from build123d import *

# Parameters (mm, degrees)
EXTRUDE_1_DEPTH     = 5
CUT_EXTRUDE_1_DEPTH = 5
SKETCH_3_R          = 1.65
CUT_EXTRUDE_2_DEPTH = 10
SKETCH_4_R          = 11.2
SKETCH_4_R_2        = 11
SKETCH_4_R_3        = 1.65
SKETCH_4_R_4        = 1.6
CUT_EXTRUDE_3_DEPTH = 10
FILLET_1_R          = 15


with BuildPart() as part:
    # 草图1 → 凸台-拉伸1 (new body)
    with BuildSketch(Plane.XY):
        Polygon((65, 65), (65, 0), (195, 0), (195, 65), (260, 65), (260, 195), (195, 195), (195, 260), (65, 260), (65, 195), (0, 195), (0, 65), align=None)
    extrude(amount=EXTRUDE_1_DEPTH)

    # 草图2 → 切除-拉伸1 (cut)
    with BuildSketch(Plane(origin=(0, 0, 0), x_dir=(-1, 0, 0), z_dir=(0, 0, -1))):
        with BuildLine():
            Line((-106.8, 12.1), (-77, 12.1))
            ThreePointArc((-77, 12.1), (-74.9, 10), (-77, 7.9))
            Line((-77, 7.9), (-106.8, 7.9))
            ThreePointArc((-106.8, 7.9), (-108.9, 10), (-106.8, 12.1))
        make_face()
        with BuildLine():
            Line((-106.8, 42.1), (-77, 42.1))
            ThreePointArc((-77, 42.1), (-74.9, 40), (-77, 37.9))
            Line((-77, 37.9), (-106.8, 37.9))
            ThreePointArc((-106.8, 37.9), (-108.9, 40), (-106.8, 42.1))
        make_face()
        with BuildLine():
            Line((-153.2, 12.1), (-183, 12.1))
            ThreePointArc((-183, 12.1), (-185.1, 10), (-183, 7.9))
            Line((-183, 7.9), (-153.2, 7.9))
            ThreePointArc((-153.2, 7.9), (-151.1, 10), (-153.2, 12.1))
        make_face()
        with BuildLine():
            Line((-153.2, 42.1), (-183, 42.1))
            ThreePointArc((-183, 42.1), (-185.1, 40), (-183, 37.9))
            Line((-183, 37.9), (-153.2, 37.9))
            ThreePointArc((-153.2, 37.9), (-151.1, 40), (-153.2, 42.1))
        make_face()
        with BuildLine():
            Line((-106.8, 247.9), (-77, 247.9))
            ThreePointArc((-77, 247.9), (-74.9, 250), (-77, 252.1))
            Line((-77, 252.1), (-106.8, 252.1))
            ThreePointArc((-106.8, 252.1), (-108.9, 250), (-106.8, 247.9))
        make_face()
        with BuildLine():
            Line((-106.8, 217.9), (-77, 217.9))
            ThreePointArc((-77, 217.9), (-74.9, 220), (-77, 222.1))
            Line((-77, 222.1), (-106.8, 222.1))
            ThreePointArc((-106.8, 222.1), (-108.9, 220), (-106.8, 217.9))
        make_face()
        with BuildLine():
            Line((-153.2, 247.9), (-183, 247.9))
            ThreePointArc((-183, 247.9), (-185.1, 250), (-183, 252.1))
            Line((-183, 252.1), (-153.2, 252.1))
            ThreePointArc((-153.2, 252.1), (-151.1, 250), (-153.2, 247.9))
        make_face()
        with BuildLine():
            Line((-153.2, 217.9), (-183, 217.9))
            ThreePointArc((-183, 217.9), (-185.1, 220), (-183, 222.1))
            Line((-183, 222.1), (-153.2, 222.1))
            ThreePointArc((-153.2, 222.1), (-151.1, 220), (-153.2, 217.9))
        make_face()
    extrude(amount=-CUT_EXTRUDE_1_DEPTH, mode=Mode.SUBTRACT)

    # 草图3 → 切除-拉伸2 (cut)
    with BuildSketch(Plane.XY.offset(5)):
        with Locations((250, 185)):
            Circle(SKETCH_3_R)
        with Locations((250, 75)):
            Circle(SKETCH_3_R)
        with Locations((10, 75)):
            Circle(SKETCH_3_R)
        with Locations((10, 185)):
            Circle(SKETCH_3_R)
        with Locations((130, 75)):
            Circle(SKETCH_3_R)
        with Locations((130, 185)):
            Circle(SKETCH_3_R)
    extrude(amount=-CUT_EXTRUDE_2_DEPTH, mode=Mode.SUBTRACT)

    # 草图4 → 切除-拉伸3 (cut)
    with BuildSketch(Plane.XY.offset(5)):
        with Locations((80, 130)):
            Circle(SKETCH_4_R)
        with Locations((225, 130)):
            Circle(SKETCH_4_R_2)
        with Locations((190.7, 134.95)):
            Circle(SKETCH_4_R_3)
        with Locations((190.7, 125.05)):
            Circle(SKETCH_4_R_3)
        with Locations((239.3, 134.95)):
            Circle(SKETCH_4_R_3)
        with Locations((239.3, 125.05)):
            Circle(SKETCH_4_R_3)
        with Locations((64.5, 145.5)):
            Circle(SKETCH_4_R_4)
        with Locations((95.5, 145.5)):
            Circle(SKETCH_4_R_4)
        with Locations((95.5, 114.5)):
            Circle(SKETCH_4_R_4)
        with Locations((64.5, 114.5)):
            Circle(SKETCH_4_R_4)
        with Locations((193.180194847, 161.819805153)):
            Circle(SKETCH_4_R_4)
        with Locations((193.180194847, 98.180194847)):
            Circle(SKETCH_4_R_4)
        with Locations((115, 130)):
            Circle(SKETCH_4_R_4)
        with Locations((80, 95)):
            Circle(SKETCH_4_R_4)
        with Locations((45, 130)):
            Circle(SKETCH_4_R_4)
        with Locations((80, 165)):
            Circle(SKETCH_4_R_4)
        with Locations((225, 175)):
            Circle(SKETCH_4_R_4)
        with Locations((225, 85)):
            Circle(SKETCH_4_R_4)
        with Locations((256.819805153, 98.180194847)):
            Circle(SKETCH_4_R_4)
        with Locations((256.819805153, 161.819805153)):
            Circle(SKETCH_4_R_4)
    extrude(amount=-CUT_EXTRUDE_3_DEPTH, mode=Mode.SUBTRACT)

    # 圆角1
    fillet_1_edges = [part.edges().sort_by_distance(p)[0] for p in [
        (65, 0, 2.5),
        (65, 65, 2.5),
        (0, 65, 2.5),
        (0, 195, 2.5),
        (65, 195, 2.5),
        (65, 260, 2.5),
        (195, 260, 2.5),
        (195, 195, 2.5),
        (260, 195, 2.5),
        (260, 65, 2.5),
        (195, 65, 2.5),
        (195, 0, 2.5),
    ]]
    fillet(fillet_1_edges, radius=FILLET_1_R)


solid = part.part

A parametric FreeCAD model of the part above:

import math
import FreeCAD as App
import Part
import Sketcher

V = App.Vector
Q = App.Units.Quantity


def edges_at(feature, points):
    """Names of the edges that pass closest to the given points."""
    edges = feature.Shape.Edges
    near = lambda p: min(range(len(edges)), key=lambda i: edges[i].distToShape(Part.Vertex(*p))[0])
    return sorted({f"Edge{near(p) + 1}" for p in points})


def add_polygon(sketch, points):
    """Adds a closed chain of lines whose ends are joined by coincident constraints."""
    first, n = sketch.GeometryCount, len(points)
    for a, b in zip(points, points[1:] + points[:1]):
        sketch.addGeometry(Part.LineSegment(App.Vector(*a, 0), App.Vector(*b, 0)), False)
    for i in range(n):
        sketch.addConstraint(Sketcher.Constraint("Coincident", first + i, 2, first + (i + 1) % n, 1))

doc = App.newDocument("Part")
body = doc.addObject("PartDesign::Body", "Body")

# Sketch on XY plane
sketch1 = body.newObject("Sketcher::SketchObject", "Sketch")
sketch1.AttachmentSupport = (doc.getObject("XY_Plane"), [""])
sketch1.MapMode = "FlatFace"
add_polygon(sketch1, [(65, 65), (65, 0), (195, 0), (195, 65), (260, 65), (260, 195), (195, 195), (195, 260), (65, 260), (65, 195), (0, 195), (0, 65)])  # lines 0-11
sketch1.addConstraint(Sketcher.Constraint("Vertical", 0))
sketch1.addConstraint(Sketcher.Constraint("Horizontal", 1))
sketch1.addConstraint(Sketcher.Constraint("Vertical", 2))
sketch1.addConstraint(Sketcher.Constraint("Horizontal", 3))
sketch1.addConstraint(Sketcher.Constraint("Vertical", 4))
sketch1.addConstraint(Sketcher.Constraint("Horizontal", 5))
sketch1.addConstraint(Sketcher.Constraint("Vertical", 6))
sketch1.addConstraint(Sketcher.Constraint("Horizontal", 7))
sketch1.addConstraint(Sketcher.Constraint("Vertical", 8))
sketch1.addConstraint(Sketcher.Constraint("Horizontal", 9))
sketch1.addConstraint(Sketcher.Constraint("Vertical", 10))
sketch1.addConstraint(Sketcher.Constraint("Horizontal", 11))
sketch1.addConstraint(Sketcher.Constraint("PointOnObject", 0, 2, -1))
sketch1.addConstraint(Sketcher.Constraint("PointOnObject", 9, 2, -2))
sketch1.addConstraint(Sketcher.Constraint("Horizontal", 5, 2, 8, 2))
sketch1.addConstraint(Sketcher.Constraint("Horizontal", 3, 2, 10, 2))
sketch1.addConstraint(Sketcher.Constraint("Vertical", 2, 2, 5, 2))
sketch1.addConstraint(Sketcher.Constraint("Vertical", 0, 2, 7, 2))
sketch1.addConstraint(Sketcher.Constraint("Equal", 5, 9))
sketch1.addConstraint(Sketcher.Constraint("Equal", 11, 0))
sketch1.addConstraint(Sketcher.Constraint("Equal", 7, 4))
sketch1.addConstraint(Sketcher.Constraint("Equal", 2, 6))
sketch1.addConstraint(Sketcher.Constraint("DistanceX", 1, 1, 1, 2, Q("130 mm")))
sketch1.addConstraint(Sketcher.Constraint("DistanceX", 3, 1, 3, 2, Q("65 mm")))
pad1 = body.newObject("PartDesign::Pad", "Pad")
pad1.Profile = sketch1
pad1.Length = 5

# Sketch on XY plane
sketch2 = body.newObject("Sketcher::SketchObject", "Sketch001")
sketch2.AttachmentSupport = (doc.getObject("XY_Plane"), [""])
sketch2.MapMode = "FlatFace"
sketch2.addGeometry(Part.LineSegment(V(77, 12.1, 0), V(106.8, 12.1, 0)), False)
sketch2.addGeometry(Part.ArcOfCircle(Part.Circle(V(106.8, 10, 0), V(0, 0, 1), 2.1), math.radians(-90), math.radians(90)), False)
sketch2.addGeometry(Part.LineSegment(V(106.8, 7.9, 0), V(77, 7.9, 0)), False)
sketch2.addGeometry(Part.ArcOfCircle(Part.Circle(V(77, 10, 0), V(0, 0, 1), 2.1), math.radians(90), math.radians(270)), False)
sketch2.addGeometry(Part.LineSegment(V(77, 42.1, 0), V(106.8, 42.1, 0)), False)
sketch2.addGeometry(Part.ArcOfCircle(Part.Circle(V(106.8, 40, 0), V(0, 0, 1), 2.1), math.radians(-90), math.radians(90)), False)
sketch2.addGeometry(Part.LineSegment(V(106.8, 37.9, 0), V(77, 37.9, 0)), False)
sketch2.addGeometry(Part.ArcOfCircle(Part.Circle(V(77, 40, 0), V(0, 0, 1), 2.1), math.radians(90), math.radians(270)), False)
sketch2.addGeometry(Part.LineSegment(V(153.2, 12.1, 0), V(183, 12.1, 0)), False)
sketch2.addGeometry(Part.ArcOfCircle(Part.Circle(V(183, 10, 0), V(0, 0, 1), 2.1), math.radians(-90), math.radians(90)), False)
sketch2.addGeometry(Part.LineSegment(V(183, 7.9, 0), V(153.2, 7.9, 0)), False)
sketch2.addGeometry(Part.ArcOfCircle(Part.Circle(V(153.2, 10, 0), V(0, 0, 1), 2.1), math.radians(90), math.radians(270)), False)
sketch2.addGeometry(Part.LineSegment(V(153.2, 42.1, 0), V(183, 42.1, 0)), False)
sketch2.addGeometry(Part.ArcOfCircle(Part.Circle(V(183, 40, 0), V(0, 0, 1), 2.1), math.radians(-90), math.radians(90)), False)
sketch2.addGeometry(Part.LineSegment(V(183, 37.9, 0), V(153.2, 37.9, 0)), False)
sketch2.addGeometry(Part.ArcOfCircle(Part.Circle(V(153.2, 40, 0), V(0, 0, 1), 2.1), math.radians(90), math.radians(270)), False)
sketch2.addGeometry(Part.LineSegment(V(106.8, 247.9, 0), V(77, 247.9, 0)), False)
sketch2.addGeometry(Part.ArcOfCircle(Part.Circle(V(77, 250, 0), V(0, 0, 1), 2.1), math.radians(90), math.radians(270)), False)
sketch2.addGeometry(Part.LineSegment(V(77, 252.1, 0), V(106.8, 252.1, 0)), False)
sketch2.addGeometry(Part.ArcOfCircle(Part.Circle(V(106.8, 250, 0), V(0, 0, 1), 2.1), math.radians(-90), math.radians(90)), False)
sketch2.addGeometry(Part.LineSegment(V(106.8, 217.9, 0), V(77, 217.9, 0)), False)
sketch2.addGeometry(Part.ArcOfCircle(Part.Circle(V(77, 220, 0), V(0, 0, 1), 2.1), math.radians(90), math.radians(270)), False)
sketch2.addGeometry(Part.LineSegment(V(77, 222.1, 0), V(106.8, 222.1, 0)), False)
sketch2.addGeometry(Part.ArcOfCircle(Part.Circle(V(106.8, 220, 0), V(0, 0, 1), 2.1), math.radians(-90), math.radians(90)), False)
sketch2.addGeometry(Part.LineSegment(V(183, 247.9, 0), V(153.2, 247.9, 0)), False)
sketch2.addGeometry(Part.ArcOfCircle(Part.Circle(V(153.2, 250, 0), V(0, 0, 1), 2.1), math.radians(90), math.radians(270)), False)
sketch2.addGeometry(Part.LineSegment(V(153.2, 252.1, 0), V(183, 252.1, 0)), False)
sketch2.addGeometry(Part.ArcOfCircle(Part.Circle(V(183, 250, 0), V(0, 0, 1), 2.1), math.radians(-90), math.radians(90)), False)
sketch2.addGeometry(Part.LineSegment(V(183, 217.9, 0), V(153.2, 217.9, 0)), False)
sketch2.addGeometry(Part.ArcOfCircle(Part.Circle(V(153.2, 220, 0), V(0, 0, 1), 2.1), math.radians(90), math.radians(270)), False)
sketch2.addGeometry(Part.LineSegment(V(153.2, 222.1, 0), V(183, 222.1, 0)), False)
sketch2.addGeometry(Part.ArcOfCircle(Part.Circle(V(183, 220, 0), V(0, 0, 1), 2.1), math.radians(-90), math.radians(90)), False)
sketch2.addConstraint(Sketcher.Constraint("Tangent", 0, 2, 1, 2))
sketch2.addConstraint(Sketcher.Constraint("Tangent", 1, 1, 2, 1))
sketch2.addConstraint(Sketcher.Constraint("Tangent", 2, 2, 3, 2))
sketch2.addConstraint(Sketcher.Constraint("Tangent", 3, 1, 0, 1))
sketch2.addConstraint(Sketcher.Constraint("Tangent", 4, 2, 5, 2))
sketch2.addConstraint(Sketcher.Constraint("Tangent", 5, 1, 6, 1))
sketch2.addConstraint(Sketcher.Constraint("Tangent", 6, 2, 7, 2))
sketch2.addConstraint(Sketcher.Constraint("Tangent", 7, 1, 4, 1))
sketch2.addConstraint(Sketcher.Constraint("Tangent", 8, 2, 9, 2))
sketch2.addConstraint(Sketcher.Constraint("Tangent", 9, 1, 10, 1))
sketch2.addConstraint(Sketcher.Constraint("Tangent", 10, 2, 11, 2))
sketch2.addConstraint(Sketcher.Constraint("Tangent", 11, 1, 8, 1))
sketch2.addConstraint(Sketcher.Constraint("Tangent", 12, 2, 13, 2))
sketch2.addConstraint(Sketcher.Constraint("Tangent", 13, 1, 14, 1))
sketch2.addConstraint(Sketcher.Constraint("Tangent", 14, 2, 15, 2))
sketch2.addConstraint(Sketcher.Constraint("Tangent", 15, 1, 12, 1))
sketch2.addConstraint(Sketcher.Constraint("Tangent", 16, 2, 17, 2))
sketch2.addConstraint(Sketcher.Constraint("Tangent", 17, 1, 18, 1))
sketch2.addConstraint(Sketcher.Constraint("Tangent", 18, 2, 19, 2))
sketch2.addConstraint(Sketcher.Constraint("Tangent", 19, 1, 16, 1))
sketch2.addConstraint(Sketcher.Constraint("Tangent", 20, 2, 21, 2))
sketch2.addConstraint(Sketcher.Constraint("Tangent", 21, 1, 22, 1))
sketch2.addConstraint(Sketcher.Constraint("Tangent", 22, 2, 23, 2))
sketch2.addConstraint(Sketcher.Constraint("Tangent", 23, 1, 20, 1))
sketch2.addConstraint(Sketcher.Constraint("Tangent", 24, 2, 25, 2))
sketch2.addConstraint(Sketcher.Constraint("Tangent", 25, 1, 26, 1))
sketch2.addConstraint(Sketcher.Constraint("Tangent", 26, 2, 27, 2))
sketch2.addConstraint(Sketcher.Constraint("Tangent", 27, 1, 24, 1))
sketch2.addConstraint(Sketcher.Constraint("Tangent", 28, 2, 29, 2))
sketch2.addConstraint(Sketcher.Constraint("Tangent", 29, 1, 30, 1))
sketch2.addConstraint(Sketcher.Constraint("Tangent", 30, 2, 31, 2))
sketch2.addConstraint(Sketcher.Constraint("Tangent", 31, 1, 28, 1))
sketch2.addConstraint(Sketcher.Constraint("Horizontal", 0))
sketch2.addConstraint(Sketcher.Constraint("Horizontal", 2))
sketch2.addConstraint(Sketcher.Constraint("Horizontal", 4))
sketch2.addConstraint(Sketcher.Constraint("Horizontal", 6))
sketch2.addConstraint(Sketcher.Constraint("Horizontal", 8))
sketch2.addConstraint(Sketcher.Constraint("Horizontal", 10))
sketch2.addConstraint(Sketcher.Constraint("Horizontal", 12))
sketch2.addConstraint(Sketcher.Constraint("Horizontal", 14))
sketch2.addConstraint(Sketcher.Constraint("Horizontal", 16))
sketch2.addConstraint(Sketcher.Constraint("Horizontal", 18))
sketch2.addConstraint(Sketcher.Constraint("Horizontal", 20))
sketch2.addConstraint(Sketcher.Constraint("Horizontal", 22))
sketch2.addConstraint(Sketcher.Constraint("Horizontal", 24))
sketch2.addConstraint(Sketcher.Constraint("Horizontal", 26))
sketch2.addConstraint(Sketcher.Constraint("Horizontal", 28))
sketch2.addConstraint(Sketcher.Constraint("Horizontal", 30))
sketch2.addConstraint(Sketcher.Constraint("Equal", 3, 5))
sketch2.addConstraint(Sketcher.Constraint("Equal", 7, 9))
sketch2.addConstraint(Sketcher.Constraint("Equal", 11, 13))
sketch2.addConstraint(Sketcher.Constraint("Equal", 15, 17))
sketch2.addConstraint(Sketcher.Constraint("Equal", 19, 21))
sketch2.addConstraint(Sketcher.Constraint("Equal", 23, 25))
sketch2.addConstraint(Sketcher.Constraint("Equal", 27, 29))
sketch2.addConstraint(Sketcher.Constraint("Horizontal", 3, 3, 9, 3))
sketch2.addConstraint(Sketcher.Constraint("Horizontal", 7, 3, 13, 3))
sketch2.addConstraint(Sketcher.Constraint("Horizontal", 19, 3, 25, 3))
sketch2.addConstraint(Sketcher.Constraint("Horizontal", 23, 3, 29, 3))
sketch2.addConstraint(Sketcher.Constraint("Vertical", 1, 3, 5, 3))
sketch2.addConstraint(Sketcher.Constraint("Vertical", 3, 3, 7, 3))
sketch2.addConstraint(Sketcher.Constraint("Vertical", 9, 3, 13, 3))
sketch2.addConstraint(Sketcher.Constraint("Vertical", 11, 3, 15, 3))
sketch2.addConstraint(Sketcher.Constraint("Vertical", 7, 3, 17, 3))
sketch2.addConstraint(Sketcher.Constraint("Vertical", 5, 3, 19, 3))
sketch2.addConstraint(Sketcher.Constraint("Vertical", 17, 3, 21, 3))
sketch2.addConstraint(Sketcher.Constraint("Vertical", 19, 3, 23, 3))
sketch2.addConstraint(Sketcher.Constraint("Vertical", 15, 3, 25, 3))
sketch2.addConstraint(Sketcher.Constraint("Vertical", 13, 3, 27, 3))
sketch2.addConstraint(Sketcher.Constraint("Vertical", 25, 3, 29, 3))
sketch2.addConstraint(Sketcher.Constraint("Vertical", 27, 3, 31, 3))
sketch2.addConstraint(Sketcher.Constraint("Equal", 6, 8))
sketch2.addConstraint(Sketcher.Constraint("Radius", 1, Q("2.1 mm")))
sketch2.addConstraint(Sketcher.Constraint("DistanceX", 0, 1, 0, 2, Q("29.8 mm")))
sketch2.addConstraint(Sketcher.Constraint("DistanceY", -1, 1, 1, 3, Q("10 mm")))
sketch2.addConstraint(Sketcher.Constraint("DistanceX", -1, 1, 3, 3, Q("77 mm")))
sketch2.addConstraint(Sketcher.Constraint("DistanceY", -1, 1, 5, 3, Q("40 mm")))
sketch2.addConstraint(Sketcher.Constraint("DistanceX", -1, 1, 9, 3, Q("183 mm")))
sketch2.addConstraint(Sketcher.Constraint("DistanceY", -1, 1, 17, 3, Q("250 mm")))
sketch2.addConstraint(Sketcher.Constraint("DistanceY", -1, 1, 21, 3, Q("220 mm")))
pocket1 = body.newObject("PartDesign::Pocket", "Pocket")
pocket1.Profile = sketch2
pocket1.Length = 5
pocket1.Reversed = True

# Sketch on XY plane
sketch3 = body.newObject("Sketcher::SketchObject", "Sketch002")
sketch3.AttachmentSupport = (doc.getObject("XY_Plane"), [""])
sketch3.MapMode = "FlatFace"
sketch3.AttachmentOffset = App.Placement(V(0, 0, 5), App.Rotation())
sketch3.addGeometry(Part.Circle(V(250, 185, 0), V(0, 0, 1), 1.6), False)
sketch3.addGeometry(Part.Circle(V(250, 75, 0), V(0, 0, 1), 1.6), False)
sketch3.addGeometry(Part.Circle(V(10, 75, 0), V(0, 0, 1), 1.6), False)
sketch3.addGeometry(Part.Circle(V(10, 185, 0), V(0, 0, 1), 1.6), False)
sketch3.addGeometry(Part.Circle(V(130, 75, 0), V(0, 0, 1), 1.6), False)
sketch3.addGeometry(Part.Circle(V(130, 185, 0), V(0, 0, 1), 1.6), False)
sketch3.addConstraint(Sketcher.Constraint("Equal", 0, 1))
sketch3.addConstraint(Sketcher.Constraint("Equal", 1, 2))
sketch3.addConstraint(Sketcher.Constraint("Equal", 2, 3))
sketch3.addConstraint(Sketcher.Constraint("Equal", 3, 4))
sketch3.addConstraint(Sketcher.Constraint("Equal", 4, 5))
sketch3.addConstraint(Sketcher.Constraint("Horizontal", 1, 3, 2, 3))
sketch3.addConstraint(Sketcher.Constraint("Horizontal", 0, 3, 3, 3))
sketch3.addConstraint(Sketcher.Constraint("Horizontal", 2, 3, 4, 3))
sketch3.addConstraint(Sketcher.Constraint("Horizontal", 3, 3, 5, 3))
sketch3.addConstraint(Sketcher.Constraint("Vertical", 0, 3, 1, 3))
sketch3.addConstraint(Sketcher.Constraint("Vertical", 2, 3, 3, 3))
sketch3.addConstraint(Sketcher.Constraint("Vertical", 4, 3, 5, 3))
sketch3.addConstraint(Sketcher.Constraint("Diameter", 0, Q("3.3 mm")))
sketch3.addConstraint(Sketcher.Constraint("DistanceX", -1, 1, 0, 3, Q("250 mm")))
sketch3.addConstraint(Sketcher.Constraint("DistanceY", -1, 1, 0, 3, Q("185 mm")))
sketch3.addConstraint(Sketcher.Constraint("DistanceY", -1, 1, 1, 3, Q("75 mm")))
sketch3.addConstraint(Sketcher.Constraint("DistanceX", -1, 1, 2, 3, Q("10 mm")))
sketch3.addConstraint(Sketcher.Constraint("DistanceX", -1, 1, 4, 3, Q("130 mm")))
pocket2 = body.newObject("PartDesign::Pocket", "Pocket001")
pocket2.Profile = sketch3
pocket2.Length = 10

# Sketch on XY plane
sketch4 = body.newObject("Sketcher::SketchObject", "Sketch003")
sketch4.AttachmentSupport = (doc.getObject("XY_Plane"), [""])
sketch4.MapMode = "FlatFace"
sketch4.AttachmentOffset = App.Placement(V(0, 0, 5), App.Rotation())
sketch4.addGeometry(Part.Circle(V(80, 130, 0), V(0, 0, 1), 11.2), False)
sketch4.addGeometry(Part.Circle(V(225, 130, 0), V(0, 0, 1), 11), False)
sketch4.addGeometry(Part.Circle(V(190.7, 134.9, 0), V(0, 0, 1), 1.6), False)
sketch4.addGeometry(Part.Circle(V(190.7, 125, 0), V(0, 0, 1), 1.6), False)
sketch4.addGeometry(Part.Circle(V(239.3, 134.9, 0), V(0, 0, 1), 1.6), False)
sketch4.addGeometry(Part.Circle(V(239.3, 125, 0), V(0, 0, 1), 1.6), False)
sketch4.addGeometry(Part.Circle(V(64.5, 145.5, 0), V(0, 0, 1), 1.6), False)
sketch4.addGeometry(Part.Circle(V(95.5, 145.5, 0), V(0, 0, 1), 1.6), False)
sketch4.addGeometry(Part.Circle(V(95.5, 114.5, 0), V(0, 0, 1), 1.6), False)
sketch4.addGeometry(Part.Circle(V(64.5, 114.5, 0), V(0, 0, 1), 1.6), False)
sketch4.addGeometry(Part.Circle(V(193.2, 161.8, 0), V(0, 0, 1), 1.6), False)
sketch4.addGeometry(Part.Circle(V(193.2, 98.2, 0), V(0, 0, 1), 1.6), False)
sketch4.addGeometry(Part.Circle(V(115, 130, 0), V(0, 0, 1), 1.6), False)
sketch4.addGeometry(Part.Circle(V(80, 95, 0), V(0, 0, 1), 1.6), False)
sketch4.addGeometry(Part.Circle(V(45, 130, 0), V(0, 0, 1), 1.6), False)
sketch4.addGeometry(Part.Circle(V(80, 165, 0), V(0, 0, 1), 1.6), False)
sketch4.addGeometry(Part.Circle(V(225, 175, 0), V(0, 0, 1), 1.6), False)
sketch4.addGeometry(Part.Circle(V(225, 85, 0), V(0, 0, 1), 1.6), False)
sketch4.addGeometry(Part.Circle(V(256.8, 98.2, 0), V(0, 0, 1), 1.6), False)
sketch4.addGeometry(Part.Circle(V(256.8, 161.8, 0), V(0, 0, 1), 1.6), False)
sketch4.addConstraint(Sketcher.Constraint("Equal", 2, 3))
sketch4.addConstraint(Sketcher.Constraint("Equal", 3, 4))
sketch4.addConstraint(Sketcher.Constraint("Equal", 4, 5))
sketch4.addConstraint(Sketcher.Constraint("Equal", 6, 7))
sketch4.addConstraint(Sketcher.Constraint("Equal", 7, 8))
sketch4.addConstraint(Sketcher.Constraint("Equal", 8, 9))
sketch4.addConstraint(Sketcher.Constraint("Equal", 9, 10))
sketch4.addConstraint(Sketcher.Constraint("Equal", 10, 11))
sketch4.addConstraint(Sketcher.Constraint("Equal", 11, 12))
sketch4.addConstraint(Sketcher.Constraint("Equal", 12, 13))
sketch4.addConstraint(Sketcher.Constraint("Equal", 13, 14))
sketch4.addConstraint(Sketcher.Constraint("Equal", 14, 15))
sketch4.addConstraint(Sketcher.Constraint("Equal", 15, 16))
sketch4.addConstraint(Sketcher.Constraint("Equal", 16, 17))
sketch4.addConstraint(Sketcher.Constraint("Equal", 17, 18))
sketch4.addConstraint(Sketcher.Constraint("Equal", 18, 19))
sketch4.addConstraint(Sketcher.Constraint("Horizontal", 0, 3, 1, 3))
sketch4.addConstraint(Sketcher.Constraint("Horizontal", 2, 3, 4, 3))
sketch4.addConstraint(Sketcher.Constraint("Horizontal", 3, 3, 5, 3))
sketch4.addConstraint(Sketcher.Constraint("Horizontal", 6, 3, 7, 3))
sketch4.addConstraint(Sketcher.Constraint("Horizontal", 8, 3, 9, 3))
sketch4.addConstraint(Sketcher.Constraint("Horizontal", 1, 3, 12, 3))
sketch4.addConstraint(Sketcher.Constraint("Horizontal", 12, 3, 14, 3))
sketch4.addConstraint(Sketcher.Constraint("Horizontal", 11, 3, 18, 3))
sketch4.addConstraint(Sketcher.Constraint("Horizontal", 10, 3, 19, 3))
sketch4.addConstraint(Sketcher.Constraint("Vertical", 2, 3, 3, 3))
sketch4.addConstraint(Sketcher.Constraint("Vertical", 4, 3, 5, 3))
sketch4.addConstraint(Sketcher.Constraint("Vertical", 7, 3, 8, 3))
sketch4.addConstraint(Sketcher.Constraint("Vertical", 6, 3, 9, 3))
sketch4.addConstraint(Sketcher.Constraint("Vertical", 10, 3, 11, 3))
sketch4.addConstraint(Sketcher.Constraint("Vertical", 0, 3, 13, 3))
sketch4.addConstraint(Sketcher.Constraint("Vertical", 13, 3, 15, 3))
sketch4.addConstraint(Sketcher.Constraint("Vertical", 1, 3, 16, 3))
sketch4.addConstraint(Sketcher.Constraint("Vertical", 16, 3, 17, 3))
sketch4.addConstraint(Sketcher.Constraint("Vertical", 18, 3, 19, 3))
sketch4.addConstraint(Sketcher.Constraint("Diameter", 1, Q("22 mm")))
sketch4.addConstraint(Sketcher.Constraint("Diameter", 0, Q("22.4 mm")))
sketch4.addConstraint(Sketcher.Constraint("Diameter", 2, Q("3.3 mm")))
sketch4.addConstraint(Sketcher.Constraint("Diameter", 6, Q("3.2 mm")))
sketch4.addConstraint(Sketcher.Constraint("DistanceX", -1, 1, 0, 3, Q("80 mm")))
sketch4.addConstraint(Sketcher.Constraint("DistanceY", -1, 1, 0, 3, Q("130 mm")))
sketch4.addConstraint(Sketcher.Constraint("DistanceX", -1, 1, 1, 3, Q("225 mm")))
sketch4.addConstraint(Sketcher.Constraint("DistanceX", -1, 1, 12, 3, Q("115 mm")))
sketch4.addConstraint(Sketcher.Constraint("DistanceY", -1, 1, 13, 3, Q("95 mm")))
sketch4.addConstraint(Sketcher.Constraint("DistanceX", -1, 1, 14, 3, Q("45 mm")))
sketch4.addConstraint(Sketcher.Constraint("DistanceY", -1, 1, 15, 3, Q("165 mm")))
sketch4.addConstraint(Sketcher.Constraint("DistanceY", -1, 1, 16, 3, Q("175 mm")))
sketch4.addConstraint(Sketcher.Constraint("DistanceY", -1, 1, 17, 3, Q("85 mm")))
sketch4.addConstraint(Sketcher.Constraint("DistanceX", 6, 3, 7, 3, Q("31 mm")))
sketch4.addConstraint(Sketcher.Constraint("DistanceY", 8, 3, 7, 3, Q("31 mm")))
sketch4.addConstraint(Sketcher.Constraint("DistanceX", -1, 1, 2, 3, Q("190.7 mm")))
sketch4.addConstraint(Sketcher.Constraint("DistanceX", -1, 1, 4, 3, Q("239.3 mm")))
sketch4.addConstraint(Sketcher.Constraint("DistanceX", -1, 1, 6, 3, Q("64.5 mm")))
sketch4.addConstraint(Sketcher.Constraint("DistanceY", -1, 1, 6, 3, Q("145.5 mm")))
sketch4.addConstraint(Sketcher.Constraint("DistanceY", 3, 3, 2, 3, Q("9.9 mm")))
sketch4.addConstraint(Sketcher.Constraint("DistanceY", -1, 1, 2, 3, Q("134.95 mm")))
sketch4.addConstraint(Sketcher.Constraint("DistanceX", 11, 3, 18, 3, Q("63.63961 mm")))
sketch4.addConstraint(Sketcher.Constraint("DistanceX", -1, 1, 10, 3, Q("193.180195 mm")))
sketch4.addConstraint(Sketcher.Constraint("DistanceY", -1, 1, 10, 3, Q("161.819805 mm")))
sketch4.addConstraint(Sketcher.Constraint("DistanceY", -1, 1, 11, 3, Q("98.180195 mm")))
pocket3 = body.newObject("PartDesign::Pocket", "Pocket002")
pocket3.Profile = sketch4
pocket3.Length = 10
doc.recompute()

fillet = body.newObject("PartDesign::Fillet", "Fillet")
fillet.Base = (pocket3, edges_at(pocket3, [
    (65, 0, 2.5),
    (65, 65, 2.5),
    (0, 65, 2.5),
    (0, 195, 2.5),
    (65, 195, 2.5),
    (65, 260, 2.5),
    (195, 260, 2.5),
    (195, 195, 2.5),
    (260, 195, 2.5),
    (260, 65, 2.5),
    (195, 65, 2.5),
    (195, 0, 2.5),
]))
fillet.Radius = 15

doc.recompute()
